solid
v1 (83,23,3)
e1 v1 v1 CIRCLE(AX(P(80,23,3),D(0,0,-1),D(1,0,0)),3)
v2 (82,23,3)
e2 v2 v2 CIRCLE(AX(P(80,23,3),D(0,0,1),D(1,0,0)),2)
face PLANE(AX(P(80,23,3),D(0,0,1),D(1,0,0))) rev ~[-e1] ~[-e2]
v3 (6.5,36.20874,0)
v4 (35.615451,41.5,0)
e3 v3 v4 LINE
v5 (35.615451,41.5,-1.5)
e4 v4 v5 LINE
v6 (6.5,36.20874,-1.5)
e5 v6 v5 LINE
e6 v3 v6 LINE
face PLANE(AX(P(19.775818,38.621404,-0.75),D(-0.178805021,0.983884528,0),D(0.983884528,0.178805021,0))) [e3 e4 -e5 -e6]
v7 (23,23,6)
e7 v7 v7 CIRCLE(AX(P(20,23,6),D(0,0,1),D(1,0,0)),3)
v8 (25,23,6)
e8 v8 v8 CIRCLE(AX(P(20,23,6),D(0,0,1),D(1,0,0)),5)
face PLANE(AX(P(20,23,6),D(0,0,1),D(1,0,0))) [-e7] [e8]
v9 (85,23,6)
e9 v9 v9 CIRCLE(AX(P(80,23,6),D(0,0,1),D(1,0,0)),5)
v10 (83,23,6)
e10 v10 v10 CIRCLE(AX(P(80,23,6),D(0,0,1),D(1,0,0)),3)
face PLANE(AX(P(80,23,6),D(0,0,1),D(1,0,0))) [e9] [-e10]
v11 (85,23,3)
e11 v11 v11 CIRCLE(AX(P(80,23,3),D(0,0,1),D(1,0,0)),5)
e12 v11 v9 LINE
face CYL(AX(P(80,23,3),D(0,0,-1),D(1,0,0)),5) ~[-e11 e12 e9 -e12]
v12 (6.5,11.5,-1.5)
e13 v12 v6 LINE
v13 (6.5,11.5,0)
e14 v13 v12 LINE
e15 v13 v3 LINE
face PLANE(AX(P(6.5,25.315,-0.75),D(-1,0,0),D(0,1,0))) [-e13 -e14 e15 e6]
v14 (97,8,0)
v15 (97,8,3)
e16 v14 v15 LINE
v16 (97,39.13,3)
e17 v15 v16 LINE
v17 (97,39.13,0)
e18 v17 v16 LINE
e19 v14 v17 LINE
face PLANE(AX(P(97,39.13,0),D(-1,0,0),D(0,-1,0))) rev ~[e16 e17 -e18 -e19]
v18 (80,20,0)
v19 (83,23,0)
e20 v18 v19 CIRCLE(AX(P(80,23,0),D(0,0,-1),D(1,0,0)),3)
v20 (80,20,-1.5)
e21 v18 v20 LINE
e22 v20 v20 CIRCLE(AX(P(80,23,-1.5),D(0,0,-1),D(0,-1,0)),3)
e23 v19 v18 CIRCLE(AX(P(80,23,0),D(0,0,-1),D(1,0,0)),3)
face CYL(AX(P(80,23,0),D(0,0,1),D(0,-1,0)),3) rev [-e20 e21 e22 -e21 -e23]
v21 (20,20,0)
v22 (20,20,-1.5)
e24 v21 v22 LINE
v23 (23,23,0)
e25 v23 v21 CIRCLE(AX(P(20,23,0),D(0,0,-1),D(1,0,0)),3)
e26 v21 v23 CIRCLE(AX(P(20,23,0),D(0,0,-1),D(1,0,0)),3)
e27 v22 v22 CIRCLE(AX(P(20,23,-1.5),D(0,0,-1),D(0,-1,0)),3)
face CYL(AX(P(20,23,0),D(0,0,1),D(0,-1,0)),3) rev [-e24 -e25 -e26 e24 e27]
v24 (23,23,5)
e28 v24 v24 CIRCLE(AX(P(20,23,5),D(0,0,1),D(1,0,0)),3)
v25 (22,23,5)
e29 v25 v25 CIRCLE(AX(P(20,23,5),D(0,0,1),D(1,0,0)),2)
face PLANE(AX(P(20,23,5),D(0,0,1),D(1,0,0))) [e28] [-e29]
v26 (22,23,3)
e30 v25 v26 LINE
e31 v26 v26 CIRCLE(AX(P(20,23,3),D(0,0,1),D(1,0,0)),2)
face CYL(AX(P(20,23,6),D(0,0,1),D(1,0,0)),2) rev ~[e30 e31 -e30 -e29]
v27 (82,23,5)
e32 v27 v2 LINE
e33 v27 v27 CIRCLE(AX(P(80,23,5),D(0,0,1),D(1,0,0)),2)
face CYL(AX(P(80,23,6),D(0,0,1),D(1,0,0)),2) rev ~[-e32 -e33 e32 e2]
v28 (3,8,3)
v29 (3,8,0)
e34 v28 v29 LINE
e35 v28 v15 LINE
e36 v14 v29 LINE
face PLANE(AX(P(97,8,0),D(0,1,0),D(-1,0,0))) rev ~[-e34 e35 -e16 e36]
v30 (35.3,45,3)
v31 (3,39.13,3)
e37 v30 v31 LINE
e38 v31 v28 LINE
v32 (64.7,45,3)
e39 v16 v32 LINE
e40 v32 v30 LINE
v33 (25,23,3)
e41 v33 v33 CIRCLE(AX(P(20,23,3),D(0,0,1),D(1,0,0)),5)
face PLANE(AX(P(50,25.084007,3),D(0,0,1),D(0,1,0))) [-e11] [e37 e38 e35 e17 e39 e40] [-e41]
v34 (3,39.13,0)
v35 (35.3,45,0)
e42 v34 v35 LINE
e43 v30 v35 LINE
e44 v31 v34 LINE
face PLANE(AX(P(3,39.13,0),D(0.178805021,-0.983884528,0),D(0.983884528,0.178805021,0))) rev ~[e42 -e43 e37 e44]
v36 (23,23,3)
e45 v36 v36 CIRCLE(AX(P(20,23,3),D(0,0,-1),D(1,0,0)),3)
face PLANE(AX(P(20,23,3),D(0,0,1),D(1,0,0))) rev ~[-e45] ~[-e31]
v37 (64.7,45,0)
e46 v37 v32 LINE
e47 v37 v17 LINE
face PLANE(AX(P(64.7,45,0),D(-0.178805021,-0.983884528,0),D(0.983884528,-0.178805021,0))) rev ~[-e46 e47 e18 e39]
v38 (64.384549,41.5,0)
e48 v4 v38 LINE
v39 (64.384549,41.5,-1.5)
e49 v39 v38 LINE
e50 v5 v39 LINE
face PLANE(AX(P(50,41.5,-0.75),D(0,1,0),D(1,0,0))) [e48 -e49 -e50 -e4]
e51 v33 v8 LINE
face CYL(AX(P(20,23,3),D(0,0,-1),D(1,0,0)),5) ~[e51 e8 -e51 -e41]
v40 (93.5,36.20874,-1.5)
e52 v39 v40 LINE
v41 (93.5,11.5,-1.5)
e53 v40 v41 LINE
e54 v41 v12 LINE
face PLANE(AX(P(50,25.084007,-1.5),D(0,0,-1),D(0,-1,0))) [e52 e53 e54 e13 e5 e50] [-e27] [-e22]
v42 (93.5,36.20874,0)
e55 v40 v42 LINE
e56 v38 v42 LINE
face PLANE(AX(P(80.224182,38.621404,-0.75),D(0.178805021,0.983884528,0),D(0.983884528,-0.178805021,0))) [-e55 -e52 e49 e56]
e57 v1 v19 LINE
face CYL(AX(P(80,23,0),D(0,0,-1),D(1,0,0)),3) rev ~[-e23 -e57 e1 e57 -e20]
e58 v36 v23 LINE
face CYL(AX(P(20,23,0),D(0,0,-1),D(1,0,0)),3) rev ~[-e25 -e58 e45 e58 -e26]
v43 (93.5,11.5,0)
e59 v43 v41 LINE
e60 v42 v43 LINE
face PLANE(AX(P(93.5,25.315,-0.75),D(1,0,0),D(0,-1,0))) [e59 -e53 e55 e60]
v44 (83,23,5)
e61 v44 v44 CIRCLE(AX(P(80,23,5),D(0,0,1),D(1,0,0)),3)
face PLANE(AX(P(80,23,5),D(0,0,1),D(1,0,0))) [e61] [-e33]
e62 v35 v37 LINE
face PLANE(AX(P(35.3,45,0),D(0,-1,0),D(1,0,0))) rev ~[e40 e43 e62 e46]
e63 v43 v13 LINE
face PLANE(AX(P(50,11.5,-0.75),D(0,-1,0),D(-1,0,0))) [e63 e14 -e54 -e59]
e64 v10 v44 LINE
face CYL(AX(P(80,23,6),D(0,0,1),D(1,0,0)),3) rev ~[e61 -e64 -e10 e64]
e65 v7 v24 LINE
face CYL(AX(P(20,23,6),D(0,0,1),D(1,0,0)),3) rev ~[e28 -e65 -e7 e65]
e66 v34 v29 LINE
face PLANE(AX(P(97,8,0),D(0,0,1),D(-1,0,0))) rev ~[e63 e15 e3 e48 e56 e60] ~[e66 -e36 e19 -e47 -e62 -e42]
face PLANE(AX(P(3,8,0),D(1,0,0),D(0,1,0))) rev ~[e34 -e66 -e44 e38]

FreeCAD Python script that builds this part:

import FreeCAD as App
import Part
import Sketcher
from FreeCAD import Vector
Q = App.Units.Quantity

doc = App.newDocument("Part")
body = doc.addObject("PartDesign::Body", "Body")

# Sketch on XY plane
sketch1 = body.newObject("Sketcher::SketchObject", "Sketch")
sketch1.AttachmentSupport = (doc.getObject("XY_Plane"), [""])
sketch1.MapMode = "FlatFace"
sketch1.addGeometry([
    Part.LineSegment(Vector(0, 45, 0), Vector(0, 0, 0)),
    Part.LineSegment(Vector(0, 0, 0), Vector(100, 0, 0)),
    Part.LineSegment(Vector(100, 0, 0), Vector(100, 45, 0)),
    Part.LineSegment(Vector(100, 45, 0), Vector(0, 45, 0)),
], False)
sketch1.addConstraint([
    Sketcher.Constraint("Coincident", 0, 2, 1, 1),
    Sketcher.Constraint("Coincident", 1, 2, 2, 1),
    Sketcher.Constraint("Coincident", 2, 2, 3, 1),
    Sketcher.Constraint("Coincident", 3, 2, 0, 1),
    Sketcher.Constraint("Vertical", 0),
    Sketcher.Constraint("Horizontal", 1),
    Sketcher.Constraint("Vertical", 2),
    Sketcher.Constraint("Horizontal", 3),
    Sketcher.Constraint("Coincident", 0, 2, -1, 1),
    Sketcher.Constraint("DistanceX", 1, 1, 1, 2, Q("100 mm")),
    Sketcher.Constraint("DistanceY", 0, 2, 0, 1, Q("45 mm")),
])
pad1 = body.newObject("PartDesign::Pad", "Pad")
pad1.Profile = sketch1
pad1.Length = 20

# Sketch on YZ plane
sketch2 = body.newObject("Sketcher::SketchObject", "Sketch001")
sketch2.AttachmentSupport = (doc.getObject("YZ_Plane"), [""])
sketch2.MapMode = "FlatFace"
sketch2.AttachmentOffset = App.Placement(Vector(0, 0, 100), App.Rotation())
sketch2.addGeometry([
    Part.LineSegment(Vector(45, 0, 0), Vector(45, 20, 0)),
    Part.LineSegment(Vector(45, 20, 0), Vector(0, 20, 0)),
    Part.LineSegment(Vector(0, 20, 0), Vector(0, 0, 0)),
    Part.LineSegment(Vector(0, 0, 0), Vector(45, 0, 0)),
], False)
sketch2.addConstraint([
    Sketcher.Constraint("Coincident", 0, 2, 1, 1),
    Sketcher.Constraint("Coincident", 1, 2, 2, 1),
    Sketcher.Constraint("Coincident", 2, 2, 3, 1),
    Sketcher.Constraint("Coincident", 3, 2, 0, 1),
    Sketcher.Constraint("Vertical", 0),
    Sketcher.Constraint("Horizontal", 1),
    Sketcher.Constraint("Vertical", 2),
    Sketcher.Constraint("Horizontal", 3),
    Sketcher.Constraint("Coincident", 2, 2, -1, 1),
    Sketcher.Constraint("DistanceX", 1, 2, 1, 1, Q("45 mm")),
    Sketcher.Constraint("DistanceY", 0, 1, 0, 2, Q("20 mm")),
])
pocket1 = body.newObject("PartDesign::Pocket", "Pocket")
pocket1.Profile = sketch2
pocket1.Length = 3

# Sketch on YZ plane
sketch3 = body.newObject("Sketcher::SketchObject", "Sketch002")
sketch3.AttachmentSupport = (doc.getObject("YZ_Plane"), [""])
sketch3.MapMode = "FlatFace"
sketch3.addGeometry([
    Part.LineSegment(Vector(0, 0, 0), Vector(0, 20, 0)),
    Part.LineSegment(Vector(0, 20, 0), Vector(45, 20, 0)),
    Part.LineSegment(Vector(45, 20, 0), Vector(45, 0, 0)),
    Part.LineSegment(Vector(45, 0, 0), Vector(0, 0, 0)),
], False)
sketch3.addConstraint([
    Sketcher.Constraint("Coincident", 0, 2, 1, 1),
    Sketcher.Constraint("Coincident", 1, 2, 2, 1),
    Sketcher.Constraint("Coincident", 2, 2, 3, 1),
    Sketcher.Constraint("Coincident", 3, 2, 0, 1),
    Sketcher.Constraint("Vertical", 0),
    Sketcher.Constraint("Horizontal", 1),
    Sketcher.Constraint("Vertical", 2),
    Sketcher.Constraint("Horizontal", 3),
    Sketcher.Constraint("Coincident", 3, 2, -1, 1),
    Sketcher.Constraint("DistanceX", 1, 1, 1, 2, Q("45 mm")),
    Sketcher.Constraint("DistanceY", 0, 1, 0, 2, Q("20 mm")),
])
pocket2 = body.newObject("PartDesign::Pocket", "Pocket001")
pocket2.Profile = sketch3
pocket2.Length = 3
pocket2.Reversed = True

# Sketch on XZ plane
sketch4 = body.newObject("Sketcher::SketchObject", "Sketch003")
sketch4.AttachmentSupport = (doc.getObject("XZ_Plane"), [""])
sketch4.MapMode = "FlatFace"
sketch4.addGeometry([
    Part.LineSegment(Vector(97, 0, 0), Vector(97, 20, 0)),
    Part.LineSegment(Vector(97, 20, 0), Vector(3, 20, 0)),
    Part.LineSegment(Vector(3, 20, 0), Vector(3, 0, 0)),
    Part.LineSegment(Vector(3, 0, 0), Vector(97, 0, 0)),
], False)
sketch4.addConstraint([
    Sketcher.Constraint("Coincident", 0, 2, 1, 1),
    Sketcher.Constraint("Coincident", 1, 2, 2, 1),
    Sketcher.Constraint("Coincident", 2, 2, 3, 1),
    Sketcher.Constraint("Coincident", 3, 2, 0, 1),
    Sketcher.Constraint("Vertical", 0),
    Sketcher.Constraint("Horizontal", 1),
    Sketcher.Constraint("Vertical", 2),
    Sketcher.Constraint("Horizontal", 3),
    Sketcher.Constraint("PointOnObject", 2, 2, -1),
    Sketcher.Constraint("DistanceX", 1, 2, 1, 1, Q("94 mm")),
    Sketcher.Constraint("DistanceY", 0, 1, 0, 2, Q("20 mm")),
    Sketcher.Constraint("DistanceX", -1, 1, 0, 2, Q("97 mm")),
])
pocket3 = body.newObject("PartDesign::Pocket", "Pocket002")
pocket3.Profile = sketch4
pocket3.Length = 8

# Sketch on XY plane
sketch5 = body.newObject("Sketcher::SketchObject", "Sketch004")
sketch5.AttachmentSupport = (doc.getObject("XY_Plane"), [""])
sketch5.MapMode = "FlatFace"
sketch5.AttachmentOffset = App.Placement(Vector(0, 0, 20), App.Rotation())
sketch5.addGeometry([
    Part.LineSegment(Vector(3, 45, 0), Vector(3, 39, 0)),  # 0
    Part.LineSegment(Vector(3, 39, 0), Vector(35, 45, 0)),  # 1
    Part.LineSegment(Vector(35, 45, 0), Vector(3, 45, 0)),  # 2
    Part.LineSegment(Vector(97, 45, 0), Vector(65, 45, 0)),  # 3
    Part.LineSegment(Vector(65, 45, 0), Vector(97, 39, 0)),  # 4
    Part.LineSegment(Vector(97, 39, 0), Vector(97, 45, 0)),  # 5
], False)
sketch5.addConstraint([
    Sketcher.Constraint("Coincident", 0, 2, 1, 1),
    Sketcher.Constraint("Coincident", 1, 2, 2, 1),
    Sketcher.Constraint("Coincident", 2, 2, 0, 1),
    Sketcher.Constraint("Coincident", 3, 2, 4, 1),
    Sketcher.Constraint("Coincident", 4, 2, 5, 1),
    Sketcher.Constraint("Coincident", 5, 2, 3, 1),
    Sketcher.Constraint("Vertical", 0),
    Sketcher.Constraint("Horizontal", 2),
    Sketcher.Constraint("Horizontal", 3),
    Sketcher.Constraint("Vertical", 5),
    Sketcher.Constraint("Horizontal", 2, 2, 3, 2),
    Sketcher.Constraint("Horizontal", 0, 2, 4, 2),
    Sketcher.Constraint("Equal", 2, 3),
    Sketcher.Constraint("DistanceX", 2, 2, 2, 1, Q("32.3 mm")),
    Sketcher.Constraint("DistanceX", -1, 1, 0, 2, Q("3 mm")),
    Sketcher.Constraint("DistanceY", -1, 1, 1, 2, Q("45 mm")),
    Sketcher.Constraint("DistanceX", -1, 1, 4, 2, Q("97 mm")),
    Sketcher.Constraint("DistanceY", 0, 2, 0, 1, Q("5.87 mm")),
])
pocket4 = body.newObject("PartDesign::Pocket", "Pocket003")
pocket4.Profile = sketch5
pocket4.Length = 20

# Sketch on XY plane
sketch6 = body.newObject("Sketcher::SketchObject", "Sketch005")
sketch6.AttachmentSupport = (doc.getObject("XY_Plane"), [""])
sketch6.MapMode = "FlatFace"
sketch6.AttachmentOffset = App.Placement(Vector(0, 0, 20), App.Rotation())
sketch6.addGeometry([
    Part.LineSegment(Vector(6, 37, 0), Vector(6, 11, 0)),  # 0
    Part.LineSegment(Vector(6, 11, 0), Vector(94, 11, 0)),  # 1
    Part.LineSegment(Vector(94, 11, 0), Vector(94, 37, 0)),  # 2
    Part.LineSegment(Vector(94, 37, 0), Vector(65, 42, 0)),  # 3
    Part.LineSegment(Vector(65, 42, 0), Vector(35, 42, 0)),  # 4
    Part.LineSegment(Vector(35, 42, 0), Vector(6, 37, 0)),  # 5
], False)
sketch6.addConstraint([
    Sketcher.Constraint("Coincident", 0, 2, 1, 1),
    Sketcher.Constraint("Coincident", 1, 2, 2, 1),
    Sketcher.Constraint("Coincident", 2, 2, 3, 1),
    Sketcher.Constraint("Coincident", 3, 2, 4, 1),
    Sketcher.Constraint("Coincident", 4, 2, 5, 1),
    Sketcher.Constraint("Coincident", 5, 2, 0, 1),
    Sketcher.Constraint("Vertical", 0),
    Sketcher.Constraint("Horizontal", 1),
    Sketcher.Constraint("Vertical", 2),
    Sketcher.Constraint("Horizontal", 4),
    Sketcher.Constraint("Horizontal", 2, 2, 5, 2),
    Sketcher.Constraint("Equal", 3, 5),
    Sketcher.Constraint("DistanceX", 1, 1, 1, 2, Q("88 mm")),
    Sketcher.Constraint("DistanceX", -1, 1, 0, 2, Q("6 mm")),
    Sketcher.Constraint("DistanceY", -1, 1, 0, 2, Q("11 mm")),
    Sketcher.Constraint("DistanceY", -1, 1, 3, 2, Q("42 mm")),
    Sketcher.Constraint("Distance", 3, Q("29.83 mm")),
    Sketcher.Constraint("DistanceX", 4, 2, 4, 1, Q("29.316111 mm")),
])
pocket5 = body.newObject("PartDesign::Pocket", "Pocket004")
pocket5.Profile = sketch6
pocket5.Length = 17

# Sketch on XY plane
sketch7 = body.newObject("Sketcher::SketchObject", "Sketch006")
sketch7.AttachmentSupport = (doc.getObject("XY_Plane"), [""])
sketch7.MapMode = "FlatFace"
sketch7.AttachmentOffset = App.Placement(Vector(0, 0, 20), App.Rotation())
sketch7.addGeometry([
    Part.LineSegment(Vector(3, 8, 0), Vector(97, 8, 0)),  # 0
    Part.LineSegment(Vector(97, 8, 0), Vector(97, 39, 0)),  # 1
    Part.LineSegment(Vector(97, 39, 0), Vector(65, 45, 0)),  # 2
    Part.LineSegment(Vector(65, 45, 0), Vector(35, 45, 0)),  # 3
    Part.LineSegment(Vector(35, 45, 0), Vector(3, 39, 0)),  # 4
    Part.LineSegment(Vector(3, 39, 0), Vector(3, 8, 0)),  # 5
    Part.LineSegment(Vector(94, 11, 0), Vector(6, 11, 0)),  # 6
    Part.LineSegment(Vector(6, 11, 0), Vector(6, 37, 0)),  # 7
    Part.LineSegment(Vector(6, 37, 0), Vector(35, 42, 0)),  # 8
    Part.LineSegment(Vector(35, 42, 0), Vector(65, 42, 0)),  # 9
    Part.LineSegment(Vector(65, 42, 0), Vector(94, 37, 0)),  # 10
    Part.LineSegment(Vector(94, 37, 0), Vector(94, 11, 0)),  # 11
], False)
sketch7.addConstraint([
    Sketcher.Constraint("Coincident", 0, 2, 1, 1),
    Sketcher.Constraint("Coincident", 1, 2, 2, 1),
    Sketcher.Constraint("Coincident", 2, 2, 3, 1),
    Sketcher.Constraint("Coincident", 3, 2, 4, 1),
    Sketcher.Constraint("Coincident", 4, 2, 5, 1),
    Sketcher.Constraint("Coincident", 5, 2, 0, 1),
    Sketcher.Constraint("Coincident", 6, 2, 7, 1),
    Sketcher.Constraint("Coincident", 7, 2, 8, 1),
    Sketcher.Constraint("Coincident", 8, 2, 9, 1),
    Sketcher.Constraint("Coincident", 9, 2, 10, 1),
    Sketcher.Constraint("Coincident", 10, 2, 11, 1),
    Sketcher.Constraint("Coincident", 11, 2, 6, 1),
    Sketcher.Constraint("Horizontal", 0),
    Sketcher.Constraint("Vertical", 1),
    Sketcher.Constraint("Horizontal", 3),
    Sketcher.Constraint("Vertical", 5),
    Sketcher.Constraint("Horizontal", 6),
    Sketcher.Constraint("Vertical", 7),
    Sketcher.Constraint("Horizontal", 9),
    Sketcher.Constraint("Vertical", 11),
    Sketcher.Constraint("Horizontal", 1, 2, 4, 2),
    Sketcher.Constraint("Horizontal", 7, 2, 10, 2),
    Sketcher.Constraint("Equal", 2, 4),
    Sketcher.Constraint("Equal", 8, 10),
    Sketcher.Constraint("DistanceX", 0, 1, 0, 2, Q("94 mm")),
    Sketcher.Constraint("DistanceX", 6, 2, 6, 1, Q("88 mm")),
    Sketcher.Constraint("DistanceX", 3, 2, 3, 1, Q("29.4 mm")),
    Sketcher.Constraint("DistanceX", -1, 1, 0, 2, Q("97 mm")),
    Sketcher.Constraint("DistanceY", -1, 1, 0, 2, Q("8 mm")),
    Sketcher.Constraint("DistanceY", -1, 1, 2, 2, Q("45 mm")),
    Sketcher.Constraint("DistanceX", -1, 1, 6, 2, Q("6 mm")),
    Sketcher.Constraint("DistanceY", -1, 1, 6, 2, Q("11 mm")),
    Sketcher.Constraint("DistanceY", -1, 1, 8, 2, Q("42 mm")),
    Sketcher.Constraint("DistanceY", 1, 1, 1, 2, Q("31.13 mm")),
    Sketcher.Constraint("Distance", 8, Q("29.83 mm")),
    Sketcher.Constraint("DistanceX", 9, 1, 9, 2, Q("29.316111 mm")),
])
pad2 = body.newObject("PartDesign::Pad", "Pad001")
pad2.Profile = sketch7
pad2.Length = 2

# Sketch on XZ plane
sketch8 = body.newObject("Sketcher::SketchObject", "Sketch007")
sketch8.AttachmentSupport = (doc.getObject("XZ_Plane"), [""])
sketch8.MapMode = "FlatFace"
sketch8.AttachmentOffset = App.Placement(Vector(0, 0, -45), App.Rotation())
sketch8.addGeometry([
    Part.Circle(Vector(59.4, 17, 0), Vector(0, 0, 1), 4),  # 0
    Part.Circle(Vector(50, 17, 0), Vector(0, 0, 1), 4),  # 1
    Part.Circle(Vector(40.6, 17, 0), Vector(0, 0, 1), 4),  # 2
    Part.Circle(Vector(59.4, 7.5, 0), Vector(0, 0, 1), 4),  # 3
    Part.Circle(Vector(50, 7.5, 0), Vector(0, 0, 1), 4),  # 4
    Part.Circle(Vector(40.6, 7.5, 0), Vector(0, 0, 1), 4),  # 5
], False)
sketch8.addConstraint([
    Sketcher.Constraint("Equal", 0, 1),
    Sketcher.Constraint("Equal", 1, 2),
    Sketcher.Constraint("Equal", 2, 3),
    Sketcher.Constraint("Equal", 3, 4),
    Sketcher.Constraint("Equal", 4, 5),
    Sketcher.Constraint("Horizontal", 0, 3, 1, 3),
    Sketcher.Constraint("Horizontal", 1, 3, 2, 3),
    Sketcher.Constraint("Horizontal", 3, 3, 4, 3),
    Sketcher.Constraint("Horizontal", 4, 3, 5, 3),
    Sketcher.Constraint("Vertical", 0, 3, 3, 3),
    Sketcher.Constraint("Vertical", 1, 3, 4, 3),
    Sketcher.Constraint("Vertical", 2, 3, 5, 3),
    Sketcher.Constraint("Diameter", 0, Q("8.05 mm")),
    Sketcher.Constraint("DistanceX", -1, 1, 1, 3, Q("50 mm")),
    Sketcher.Constraint("DistanceY", 3, 3, 0, 3, Q("9.45 mm")),
    Sketcher.Constraint("DistanceY", -1, 1, 0, 3, Q("16.975 mm")),
    Sketcher.Constraint("DistanceX", 2, 3, 0, 3, Q("18.725 mm")),
    Sketcher.Constraint("DistanceX", -1, 1, 0, 3, Q("59.3625 mm")),
])
pocket6 = body.newObject("PartDesign::Pocket", "Pocket005")
pocket6.Profile = sketch8
pocket6.Length = 5
pocket6.Reversed = True

# Sketch on an angled plane
sketch9 = body.newObject("Sketcher::SketchObject", "Sketch008")
sketch9.Placement = App.Placement(Vector(9.985096, 54.943544, 0), App.Rotation(Vector(-0.983884528, 0.178805021, 0), Vector(0, 0, 1), Vector(0.178805021, 0.983884528, 0), "ZXY"))
sketch9.addGeometry([
    Part.Circle(Vector(-80, 17, 0), Vector(0, 0, 1), 4),  # 0
    Part.Circle(Vector(-71, 17, 0), Vector(0, 0, 1), 4),  # 1
    Part.Circle(Vector(-61.6, 17, 0), Vector(0, 0, 1), 4),  # 2
    Part.Circle(Vector(-80.3, 7.5, 0), Vector(0, 0, 1), 4),  # 3
    Part.Circle(Vector(-71, 7.5, 0), Vector(0, 0, 1), 4),  # 4
    Part.Circle(Vector(-61.6, 7.5, 0), Vector(0, 0, 1), 4),  # 5
], False)
sketch9.addConstraint([
    Sketcher.Constraint("Equal", 0, 1),
    Sketcher.Constraint("Equal", 1, 2),
    Sketcher.Constraint("Equal", 2, 3),
    Sketcher.Constraint("Equal", 3, 4),
    Sketcher.Constraint("Equal", 4, 5),
    Sketcher.Constraint("Horizontal", 0, 3, 1, 3),
    Sketcher.Constraint("Horizontal", 1, 3, 2, 3),
    Sketcher.Constraint("Horizontal", 3, 3, 4, 3),
    Sketcher.Constraint("Horizontal", 4, 3, 5, 3),
    Sketcher.Constraint("Vertical", 1, 3, 4, 3),
    Sketcher.Constraint("Vertical", 2, 3, 5, 3),
    Sketcher.Constraint("Diameter", 0, Q("8.05 mm")),
    Sketcher.Constraint("DistanceY", 3, 3, 0, 3, Q("9.45 mm")),
    Sketcher.Constraint("DistanceY", -1, 1, 0, 3, Q("16.975 mm")),
    Sketcher.Constraint("DistanceX", 3, 3, 2, 3, Q("18.725 mm")),
    Sketcher.Constraint("DistanceX", 1, 3, 2, 3, Q("9.3625 mm")),
    Sketcher.Constraint("DistanceX", 0, 3, 1, 3, Q("9.03625 mm")),
    Sketcher.Constraint("DistanceX", 0, 3, -1, 1, Q("80.009853 mm")),
])
pocket7 = body.newObject("PartDesign::Pocket", "Pocket006")
pocket7.Profile = sketch9
pocket7.Length = 5

# Sketch on an angled plane
sketch10 = body.newObject("Sketcher::SketchObject", "Sketch009")
sketch10.Placement = App.Placement(Vector(-6.787973, 37.351195, 0), App.Rotation(Vector(-0.983884528, -0.178805021, 0), Vector(0, 0, 1), Vector(-0.178805021, 0.983884528, 0), "ZXY"))
sketch10.addGeometry([
    Part.Circle(Vector(-36.8, 17, 0), Vector(0, 0, 1), 4),  # 0
    Part.Circle(Vector(-27.4, 17, 0), Vector(0, 0, 1), 4),  # 1
    Part.Circle(Vector(-18.1, 17, 0), Vector(0, 0, 1), 4),  # 2
    Part.Circle(Vector(-36.8, 7.5, 0), Vector(0, 0, 1), 4),  # 3
    Part.Circle(Vector(-27.4, 7.5, 0), Vector(0, 0, 1), 4),  # 4
    Part.Circle(Vector(-18.1, 7.5, 0), Vector(0, 0, 1), 4),  # 5
], False)
sketch10.addConstraint([
    Sketcher.Constraint("Equal", 0, 1),
    Sketcher.Constraint("Equal", 1, 2),
    Sketcher.Constraint("Equal", 2, 3),
    Sketcher.Constraint("Equal", 3, 4),
    Sketcher.Constraint("Equal", 4, 5),
    Sketcher.Constraint("Horizontal", 0, 3, 1, 3),
    Sketcher.Constraint("Horizontal", 1, 3, 2, 3),
    Sketcher.Constraint("Horizontal", 3, 3, 4, 3),
    Sketcher.Constraint("Horizontal", 4, 3, 5, 3),
    Sketcher.Constraint("Vertical", 0, 3, 3, 3),
    Sketcher.Constraint("Vertical", 1, 3, 4, 3),
    Sketcher.Constraint("Vertical", 2, 3, 5, 3),
    Sketcher.Constraint("Diameter", 0, Q("8.05 mm")),
    Sketcher.Constraint("DistanceY", 3, 3, 0, 3, Q("9.45 mm")),
    Sketcher.Constraint("DistanceY", -1, 1, 0, 3, Q("16.975 mm")),
    Sketcher.Constraint("DistanceX", 0, 3, 2, 3, Q("18.725 mm")),
    Sketcher.Constraint("DistanceX", 0, 3, 1, 3, Q("9.3625 mm")),
    Sketcher.Constraint("DistanceX", 0, 3, -1, 1, Q("36.77735 mm")),
])
pocket8 = body.newObject("PartDesign::Pocket", "Pocket007")
pocket8.Profile = sketch10
pocket8.Length = 5

# Sketch on XY plane
sketch11 = body.newObject("Sketcher::SketchObject", "Sketch010")
sketch11.AttachmentSupport = (doc.getObject("XY_Plane"), [""])
sketch11.MapMode = "FlatFace"
sketch11.addGeometry([
    Part.Circle(Vector(50, 23, 0), Vector(0, 0, 1), 4),  # 0
    Part.Circle(Vector(65.7, 18, 0), Vector(0, 0, 1), 2),  # 1
    Part.Circle(Vector(34.3, 18, 0), Vector(0, 0, 1), 2),  # 2
    Part.Circle(Vector(20, 23, 0), Vector(0, 0, 1), 2),  # 3
    Part.Circle(Vector(80, 23, 0), Vector(0, 0, 1), 2),  # 4
], False)
sketch11.addConstraint([
    Sketcher.Constraint("Equal", 1, 2),
    Sketcher.Constraint("Equal", 2, 3),
    Sketcher.Constraint("Equal", 3, 4),
    Sketcher.Constraint("Horizontal", 1, 3, 2, 3),
    Sketcher.Constraint("Horizontal", 0, 3, 3, 3),
    Sketcher.Constraint("Horizontal", 3, 3, 4, 3),
    Sketcher.Constraint("Diameter", 0, Q("8 mm")),
    Sketcher.Constraint("Diameter", 1, Q("4 mm")),
    Sketcher.Constraint("DistanceX", -1, 1, 0, 3, Q("50 mm")),
    Sketcher.Constraint("DistanceY", -1, 1, 0, 3, Q("23 mm")),
    Sketcher.Constraint("DistanceY", -1, 1, 1, 3, Q("18 mm")),
    Sketcher.Constraint("DistanceX", -1, 1, 3, 3, Q("20 mm")),
    Sketcher.Constraint("DistanceX", -1, 1, 4, 3, Q("80 mm")),
    Sketcher.Constraint("DistanceX", -1, 1, 1, 3, Q("65.7 mm")),
    Sketcher.Constraint("DistanceX", -1, 1, 2, 3, Q("34.3 mm")),
])
pocket9 = body.newObject("PartDesign::Pocket", "Pocket008")
pocket9.Profile = sketch11
pocket9.Length = 5
pocket9.Reversed = True

# Sketch on XY plane
sketch12 = body.newObject("Sketcher::SketchObject", "Sketch011")
sketch12.AttachmentSupport = (doc.getObject("XY_Plane"), [""])
sketch12.MapMode = "FlatFace"
sketch12.addGeometry([
    Part.Circle(Vector(20, 23, 0), Vector(0, 0, 1), 3),
    Part.Circle(Vector(80, 23, 0), Vector(0, 0, 1), 3),
], False)
sketch12.addConstraint([
    Sketcher.Constraint("Equal", 0, 1),
    Sketcher.Constraint("Horizontal", 0, 3, 1, 3),
    Sketcher.Constraint("Diameter", 0, Q("6 mm")),
    Sketcher.Constraint("DistanceX", -1, 1, 0, 3, Q("20 mm")),
    Sketcher.Constraint("DistanceY", -1, 1, 0, 3, Q("23 mm")),
    Sketcher.Constraint("DistanceX", -1, 1, 1, 3, Q("80 mm")),
])
pocket10 = body.newObject("PartDesign::Pocket", "Pocket009")
pocket10.Profile = sketch12
pocket10.Length = 1
pocket10.Reversed = True

# Sketch on XY plane
sketch13 = body.newObject("Sketcher::SketchObject", "Sketch012")
sketch13.AttachmentSupport = (doc.getObject("XY_Plane"), [""])
sketch13.MapMode = "FlatFace"
sketch13.AttachmentOffset = App.Placement(Vector(0, 0, 22), App.Rotation())
sketch13.addGeometry([
    Part.LineSegment(Vector(3, 8, 0), Vector(97, 8, 0)),  # 0
    Part.LineSegment(Vector(97, 8, 0), Vector(97, 39, 0)),  # 1
    Part.LineSegment(Vector(97, 39, 0), Vector(65, 45, 0)),  # 2
    Part.LineSegment(Vector(65, 45, 0), Vector(35, 45, 0)),  # 3
    Part.LineSegment(Vector(35, 45, 0), Vector(3, 39, 0)),  # 4
    Part.LineSegment(Vector(3, 39, 0), Vector(3, 8, 0)),  # 5
    Part.LineSegment(Vector(94, 11, 0), Vector(6, 11, 0)),  # 6
    Part.LineSegment(Vector(6, 11, 0), Vector(6, 37, 0)),  # 7
    Part.LineSegment(Vector(6, 37, 0), Vector(35, 42, 0)),  # 8
    Part.LineSegment(Vector(35, 42, 0), Vector(65, 42, 0)),  # 9
    Part.LineSegment(Vector(65, 42, 0), Vector(94, 37, 0)),  # 10
    Part.LineSegment(Vector(94, 37, 0), Vector(94, 11, 0)),  # 11
], False)
sketch13.addConstraint([
    Sketcher.Constraint("Coincident", 0, 2, 1, 1),
    Sketcher.Constraint("Coincident", 1, 2, 2, 1),
    Sketcher.Constraint("Coincident", 2, 2, 3, 1),
    Sketcher.Constraint("Coincident", 3, 2, 4, 1),
    Sketcher.Constraint("Coincident", 4, 2, 5, 1),
    Sketcher.Constraint("Coincident", 5, 2, 0, 1),
    Sketcher.Constraint("Coincident", 6, 2, 7, 1),
    Sketcher.Constraint("Coincident", 7, 2, 8, 1),
    Sketcher.Constraint("Coincident", 8, 2, 9, 1),
    Sketcher.Constraint("Coincident", 9, 2, 10, 1),
    Sketcher.Constraint("Coincident", 10, 2, 11, 1),
    Sketcher.Constraint("Coincident", 11, 2, 6, 1),
    Sketcher.Constraint("Horizontal", 0),
    Sketcher.Constraint("Vertical", 1),
    Sketcher.Constraint("Horizontal", 3),
    Sketcher.Constraint("Vertical", 5),
    Sketcher.Constraint("Horizontal", 6),
    Sketcher.Constraint("Vertical", 7),
    Sketcher.Constraint("Horizontal", 9),
    Sketcher.Constraint("Vertical", 11),
    Sketcher.Constraint("Horizontal", 1, 2, 4, 2),
    Sketcher.Constraint("Horizontal", 7, 2, 10, 2),
    Sketcher.Constraint("Equal", 2, 4),
    Sketcher.Constraint("Equal", 8, 10),
    Sketcher.Constraint("DistanceX", 0, 1, 0, 2, Q("94 mm")),
    Sketcher.Constraint("DistanceX", 6, 2, 6, 1, Q("88 mm")),
    Sketcher.Constraint("DistanceX", 3, 2, 3, 1, Q("29.4 mm")),
    Sketcher.Constraint("DistanceX", -1, 1, 0, 2, Q("97 mm")),
    Sketcher.Constraint("DistanceY", -1, 1, 0, 2, Q("8 mm")),
    Sketcher.Constraint("DistanceY", -1, 1, 2, 2, Q("45 mm")),
    Sketcher.Constraint("DistanceX", -1, 1, 6, 2, Q("6 mm")),
    Sketcher.Constraint("DistanceY", -1, 1, 6, 2, Q("11 mm")),
    Sketcher.Constraint("DistanceY", -1, 1, 8, 2, Q("42 mm")),
    Sketcher.Constraint("DistanceY", 1, 1, 1, 2, Q("31.13 mm")),
    Sketcher.Constraint("Distance", 8, Q("29.83 mm")),
    Sketcher.Constraint("DistanceX", 9, 1, 9, 2, Q("29.316111 mm")),
])
pad3 = body.newObject("PartDesign::Pad", "Pad002")
pad3.Profile = sketch13
pad3.Length = 1

# Sketch on XZ plane
sketch14 = body.newObject("Sketcher::SketchObject", "Sketch013")
sketch14.AttachmentSupport = (doc.getObject("XZ_Plane"), [""])
sketch14.MapMode = "FlatFace"
sketch14.AttachmentOffset = App.Placement(Vector(0, 0, -45), App.Rotation())
sketch14.addGeometry([
    Part.Circle(Vector(59.4, 17, 0), Vector(0, 0, 1), 4),  # 0
    Part.Circle(Vector(50, 17, 0), Vector(0, 0, 1), 4),  # 1
    Part.Circle(Vector(40.6, 17, 0), Vector(0, 0, 1), 4),  # 2
    Part.Circle(Vector(40.6, 7.5, 0), Vector(0, 0, 1), 4),  # 3
    Part.Circle(Vector(50, 7.5, 0), Vector(0, 0, 1), 4),  # 4
    Part.Circle(Vector(59.4, 7.5, 0), Vector(0, 0, 1), 4),  # 5
], False)
sketch14.addConstraint([
    Sketcher.Constraint("Equal", 0, 1),
    Sketcher.Constraint("Equal", 1, 2),
    Sketcher.Constraint("Equal", 2, 3),
    Sketcher.Constraint("Equal", 3, 4),
    Sketcher.Constraint("Equal", 4, 5),
    Sketcher.Constraint("Horizontal", 0, 3, 1, 3),
    Sketcher.Constraint("Horizontal", 1, 3, 2, 3),
    Sketcher.Constraint("Horizontal", 3, 3, 4, 3),
    Sketcher.Constraint("Horizontal", 4, 3, 5, 3),
    Sketcher.Constraint("Vertical", 2, 3, 3, 3),
    Sketcher.Constraint("Vertical", 0, 3, 5, 3),
    Sketcher.Constraint("Diameter", 0, Q("8.1 mm")),
    Sketcher.Constraint("DistanceX", -1, 1, 4, 3, Q("50 mm")),
    Sketcher.Constraint("DistanceY", 3, 3, 2, 3, Q("9.45 mm")),
    Sketcher.Constraint("DistanceY", -1, 1, 0, 3, Q("16.975 mm")),
    Sketcher.Constraint("DistanceX", 2, 3, 0, 3, Q("18.725 mm")),
    Sketcher.Constraint("DistanceX", -1, 1, 0, 3, Q("59.3625 mm")),
    Sketcher.Constraint("DistanceX", -1, 1, 1, 3, Q("50.000011 mm")),
])
pocket11 = body.newObject("PartDesign::Pocket", "Pocket010")
pocket11.Profile = sketch14
pocket11.Length = 5
pocket11.Reversed = True

# Sketch on an angled plane
sketch15 = body.newObject("Sketcher::SketchObject", "Sketch014")
sketch15.Placement = App.Placement(Vector(9.985096, 54.943544, 0), App.Rotation(Vector(-0.983884528, 0.178805021, 0), Vector(0, 0, 1), Vector(0.178805021, 0.983884528, 0), "ZXY"))
sketch15.addGeometry([
    Part.Circle(Vector(-80, 17, 0), Vector(0, 0, 1), 4),  # 0
    Part.Circle(Vector(-71, 17, 0), Vector(0, 0, 1), 4),  # 1
    Part.Circle(Vector(-61.6, 17, 0), Vector(0, 0, 1), 4),  # 2
    Part.Circle(Vector(-61.6, 7.5, 0), Vector(0, 0, 1), 4),  # 3
    Part.Circle(Vector(-71, 7.5, 0), Vector(0, 0, 1), 4),  # 4
    Part.Circle(Vector(-80.3, 7.5, 0), Vector(0, 0, 1), 4),  # 5
], False)
sketch15.addConstraint([
    Sketcher.Constraint("Equal", 0, 1),
    Sketcher.Constraint("Equal", 1, 2),
    Sketcher.Constraint("Equal", 2, 3),
    Sketcher.Constraint("Equal", 3, 4),
    Sketcher.Constraint("Equal", 4, 5),
    Sketcher.Constraint("Horizontal", 0, 3, 1, 3),
    Sketcher.Constraint("Horizontal", 1, 3, 2, 3),
    Sketcher.Constraint("Horizontal", 3, 3, 4, 3),
    Sketcher.Constraint("Horizontal", 4, 3, 5, 3),
    Sketcher.Constraint("Vertical", 2, 3, 3, 3),
    Sketcher.Constraint("Vertical", 1, 3, 4, 3),
    Sketcher.Constraint("Diameter", 0, Q("8.1 mm")),
    Sketcher.Constraint("DistanceY", 3, 3, 2, 3, Q("9.45 mm")),
    Sketcher.Constraint("DistanceY", -1, 1, 0, 3, Q("16.975 mm")),
    Sketcher.Constraint("DistanceX", 5, 3, 3, 3, Q("18.725 mm")),
    Sketcher.Constraint("DistanceX", 1, 3, 2, 3, Q("9.3625 mm")),
    Sketcher.Constraint("DistanceX", 0, 3, 1, 3, Q("9.03625 mm")),
    Sketcher.Constraint("DistanceX", 0, 3, -1, 1, Q("80.009853 mm")),
])
pocket12 = body.newObject("PartDesign::Pocket", "Pocket011")
pocket12.Profile = sketch15
pocket12.Length = 5

# Sketch on an angled plane
sketch16 = body.newObject("Sketcher::SketchObject", "Sketch015")
sketch16.Placement = App.Placement(Vector(-6.787973, 37.351195, 0), App.Rotation(Vector(-0.983884528, -0.178805021, 0), Vector(0, 0, 1), Vector(-0.178805021, 0.983884528, 0), "ZXY"))
sketch16.addGeometry([
    Part.Circle(Vector(-36.8, 17, 0), Vector(0, 0, 1), 4),  # 0
    Part.Circle(Vector(-27.4, 17, 0), Vector(0, 0, 1), 4),  # 1
    Part.Circle(Vector(-18.1, 17, 0), Vector(0, 0, 1), 4),  # 2
    Part.Circle(Vector(-18.1, 7.5, 0), Vector(0, 0, 1), 4),  # 3
    Part.Circle(Vector(-27.4, 7.5, 0), Vector(0, 0, 1), 4),  # 4
    Part.Circle(Vector(-36.8, 7.5, 0), Vector(0, 0, 1), 4),  # 5
], False)
sketch16.addConstraint([
    Sketcher.Constraint("Equal", 0, 1),
    Sketcher.Constraint("Equal", 1, 2),
    Sketcher.Constraint("Equal", 2, 3),
    Sketcher.Constraint("Equal", 3, 4),
    Sketcher.Constraint("Equal", 4, 5),
    Sketcher.Constraint("Horizontal", 0, 3, 1, 3),
    Sketcher.Constraint("Horizontal", 1, 3, 2, 3),
    Sketcher.Constraint("Horizontal", 3, 3, 4, 3),
    Sketcher.Constraint("Horizontal", 4, 3, 5, 3),
    Sketcher.Constraint("Vertical", 2, 3, 3, 3),
    Sketcher.Constraint("Vertical", 1, 3, 4, 3),
    Sketcher.Constraint("Vertical", 0, 3, 5, 3),
    Sketcher.Constraint("Diameter", 0, Q("8.1 mm")),
    Sketcher.Constraint("DistanceY", 3, 3, 2, 3, Q("9.45 mm")),
    Sketcher.Constraint("DistanceY", -1, 1, 0, 3, Q("16.975 mm")),
    Sketcher.Constraint("DistanceX", 0, 3, 2, 3, Q("18.725 mm")),
    Sketcher.Constraint("DistanceX", 0, 3, 1, 3, Q("9.3625 mm")),
    Sketcher.Constraint("DistanceX", 0, 3, -1, 1, Q("36.77735 mm")),
])
pocket13 = body.newObject("PartDesign::Pocket", "Pocket012")
pocket13.Profile = sketch16
pocket13.Length = 5

# Sketch on YZ plane
sketch17 = body.newObject("Sketcher::SketchObject", "Sketch016")
sketch17.AttachmentSupport = (doc.getObject("YZ_Plane"), [""])
sketch17.MapMode = "FlatFace"
sketch17.AttachmentOffset = App.Placement(Vector(0, 0, 3), App.Rotation())
sketch17.addGeometry(Part.Circle(Vector(20, 15, 0), Vector(0, 0, 1), 4), False)
sketch17.addConstraint([
    Sketcher.Constraint("Diameter", 0, Q("8 mm")),
    Sketcher.Constraint("DistanceX", -1, 1, 0, 3, Q("20 mm")),
    Sketcher.Constraint("DistanceY", -1, 1, 0, 3, Q("15 mm")),
])
pocket14 = body.newObject("PartDesign::Pocket", "Pocket013")
pocket14.Profile = sketch17
pocket14.Length = 5
pocket14.Reversed = True

# Sketch on YZ plane
sketch18 = body.newObject("Sketcher::SketchObject", "Sketch017")
sketch18.AttachmentSupport = (doc.getObject("YZ_Plane"), [""])
sketch18.MapMode = "FlatFace"
sketch18.AttachmentOffset = App.Placement(Vector(0, 0, 3), App.Rotation())
sketch18.addGeometry([
    Part.LineSegment(Vector(28, 20, 0), Vector(28, 9, 0)),
    Part.LineSegment(Vector(28, 9, 0), Vector(12, 9, 0)),
    Part.LineSegment(Vector(12, 9, 0), Vector(12, 20, 0)),
    Part.LineSegment(Vector(12, 20, 0), Vector(28, 20, 0)),
], False)
sketch18.addConstraint([
    Sketcher.Constraint("Coincident", 0, 2, 1, 1),
    Sketcher.Constraint("Coincident", 1, 2, 2, 1),
    Sketcher.Constraint("Coincident", 2, 2, 3, 1),
    Sketcher.Constraint("Coincident", 3, 2, 0, 1),
    Sketcher.Constraint("Vertical", 0),
    Sketcher.Constraint("Horizontal", 1),
    Sketcher.Constraint("Vertical", 2),
    Sketcher.Constraint("Horizontal", 3),
    Sketcher.Constraint("DistanceX", 1, 2, 1, 1, Q("15.333549 mm")),
    Sketcher.Constraint("DistanceY", 0, 2, 0, 1, Q("10.93085 mm")),
    Sketcher.Constraint("DistanceX", -1, 1, 0, 2, Q("27.7057 mm")),
    Sketcher.Constraint("DistanceY", -1, 1, 0, 2, Q("8.925771 mm")),
])
pad4 = body.newObject("PartDesign::Pad", "Pad003")
pad4.Profile = sketch18
pad4.Length = 3

# Sketch on XY plane
sketch19 = body.newObject("Sketcher::SketchObject", "Sketch018")
sketch19.AttachmentSupport = (doc.getObject("XY_Plane"), [""])
sketch19.MapMode = "FlatFace"
sketch19.AttachmentOffset = App.Placement(Vector(0, 0, 23), App.Rotation())
sketch19.addGeometry([
    Part.LineSegment(Vector(3, 8, 0), Vector(97, 8, 0)),  # 0
    Part.LineSegment(Vector(97, 8, 0), Vector(97, 39, 0)),  # 1
    Part.LineSegment(Vector(97, 39, 0), Vector(65, 45, 0)),  # 2
    Part.LineSegment(Vector(65, 45, 0), Vector(35, 45, 0)),  # 3
    Part.LineSegment(Vector(35, 45, 0), Vector(3, 39, 0)),  # 4
    Part.LineSegment(Vector(3, 39, 0), Vector(3, 8, 0)),  # 5
    Part.LineSegment(Vector(94, 11, 0), Vector(6, 11, 0)),  # 6
    Part.LineSegment(Vector(6, 11, 0), Vector(6, 37, 0)),  # 7
    Part.LineSegment(Vector(6, 37, 0), Vector(35, 42, 0)),  # 8
    Part.LineSegment(Vector(35, 42, 0), Vector(65, 42, 0)),  # 9
    Part.LineSegment(Vector(65, 42, 0), Vector(94, 37, 0)),  # 10
    Part.LineSegment(Vector(94, 37, 0), Vector(94, 11, 0)),  # 11
], False)
sketch19.addConstraint([
    Sketcher.Constraint("Coincident", 0, 2, 1, 1),
    Sketcher.Constraint("Coincident", 1, 2, 2, 1),
    Sketcher.Constraint("Coincident", 2, 2, 3, 1),
    Sketcher.Constraint("Coincident", 3, 2, 4, 1),
    Sketcher.Constraint("Coincident", 4, 2, 5, 1),
    Sketcher.Constraint("Coincident", 5, 2, 0, 1),
    Sketcher.Constraint("Coincident", 6, 2, 7, 1),
    Sketcher.Constraint("Coincident", 7, 2, 8, 1),
    Sketcher.Constraint("Coincident", 8, 2, 9, 1),
    Sketcher.Constraint("Coincident", 9, 2, 10, 1),
    Sketcher.Constraint("Coincident", 10, 2, 11, 1),
    Sketcher.Constraint("Coincident", 11, 2, 6, 1),
    Sketcher.Constraint("Horizontal", 0),
    Sketcher.Constraint("Vertical", 1),
    Sketcher.Constraint("Horizontal", 3),
    Sketcher.Constraint("Vertical", 5),
    Sketcher.Constraint("Horizontal", 6),
    Sketcher.Constraint("Vertical", 7),
    Sketcher.Constraint("Horizontal", 9),
    Sketcher.Constraint("Vertical", 11),
    Sketcher.Constraint("Horizontal", 1, 2, 4, 2),
    Sketcher.Constraint("Horizontal", 7, 2, 10, 2),
    Sketcher.Constraint("Equal", 2, 4),
    Sketcher.Constraint("Equal", 8, 10),
    Sketcher.Constraint("DistanceX", 0, 1, 0, 2, Q("94 mm")),
    Sketcher.Constraint("DistanceX", 6, 2, 6, 1, Q("88 mm")),
    Sketcher.Constraint("DistanceX", 3, 2, 3, 1, Q("29.4 mm")),
    Sketcher.Constraint("DistanceX", -1, 1, 0, 2, Q("97 mm")),
    Sketcher.Constraint("DistanceY", -1, 1, 0, 2, Q("8 mm")),
    Sketcher.Constraint("DistanceY", -1, 1, 2, 2, Q("45 mm")),
    Sketcher.Constraint("DistanceX", -1, 1, 6, 2, Q("6 mm")),
    Sketcher.Constraint("DistanceY", -1, 1, 6, 2, Q("11 mm")),
    Sketcher.Constraint("DistanceY", -1, 1, 8, 2, Q("42 mm")),
    Sketcher.Constraint("DistanceY", 1, 1, 1, 2, Q("31.13 mm")),
    Sketcher.Constraint("Distance", 8, Q("29.83 mm")),
    Sketcher.Constraint("DistanceX", 9, 1, 9, 2, Q("29.316111 mm")),
])
pocket15 = body.newObject("PartDesign::Pocket", "Pocket014")
pocket15.Profile = sketch19
pocket15.Length = 20

# Sketch on XY plane
sketch20 = body.newObject("Sketcher::SketchObject", "Sketch019")
sketch20.AttachmentSupport = (doc.getObject("XY_Plane"), [""])
sketch20.MapMode = "FlatFace"
sketch20.AttachmentOffset = App.Placement(Vector(0, 0, 3), App.Rotation())
sketch20.addGeometry([
    Part.LineSegment(Vector(28, 34, 0), Vector(28, 13, 0)),
    Part.LineSegment(Vector(28, 13, 0), Vector(72, 13, 0)),
    Part.LineSegment(Vector(72, 13, 0), Vector(72, 34, 0)),
    Part.LineSegment(Vector(72, 34, 0), Vector(28, 34, 0)),
], False)
sketch20.addConstraint([
    Sketcher.Constraint("Coincident", 0, 2, 1, 1),
    Sketcher.Constraint("Coincident", 1, 2, 2, 1),
    Sketcher.Constraint("Coincident", 2, 2, 3, 1),
    Sketcher.Constraint("Coincident", 3, 2, 0, 1),
    Sketcher.Constraint("Vertical", 0),
    Sketcher.Constraint("Horizontal", 1),
    Sketcher.Constraint("Vertical", 2),
    Sketcher.Constraint("Horizontal", 3),
    Sketcher.Constraint("DistanceY", 0, 2, 0, 1, Q("21.123651 mm")),
    Sketcher.Constraint("DistanceX", 1, 1, 1, 2, Q("44.347308 mm")),
    Sketcher.Constraint("DistanceX", -1, 1, 1, 2, Q("72.252831 mm")),
    Sketcher.Constraint("DistanceY", -1, 1, 0, 2, Q("13.156153 mm")),
])
pad5 = body.newObject("PartDesign::Pad", "Pad004")
pad5.Profile = sketch20
pad5.Length = 3
pad5.Reversed = True

# Sketch on XY plane
sketch21 = body.newObject("Sketcher::SketchObject", "Sketch020")
sketch21.AttachmentSupport = (doc.getObject("XY_Plane"), [""])
sketch21.MapMode = "FlatFace"
sketch21.addGeometry([
    Part.Circle(Vector(20, 23, 0), Vector(0, 0, 1), 3),
    Part.Circle(Vector(80, 23, 0), Vector(0, 0, 1), 3),
], False)
sketch21.addConstraint([
    Sketcher.Constraint("Equal", 0, 1),
    Sketcher.Constraint("Horizontal", 0, 3, 1, 3),
    Sketcher.Constraint("Diameter", 0, Q("6 mm")),
    Sketcher.Constraint("DistanceX", -1, 1, 0, 3, Q("20 mm")),
    Sketcher.Constraint("DistanceY", -1, 1, 0, 3, Q("23 mm")),
    Sketcher.Constraint("DistanceX", -1, 1, 1, 3, Q("80 mm")),
])
pocket16 = body.newObject("PartDesign::Pocket", "Pocket015")
pocket16.Profile = sketch21
pocket16.Length = 5
pocket16.Reversed = True

# Sketch on XY plane
sketch22 = body.newObject("Sketcher::SketchObject", "Sketch021")
sketch22.AttachmentSupport = (doc.getObject("XY_Plane"), [""])
sketch22.MapMode = "FlatFace"
sketch22.AttachmentOffset = App.Placement(Vector(0, 0, 3), App.Rotation())
sketch22.addGeometry([
    Part.Circle(Vector(20, 23, 0), Vector(0, 0, 1), 5),
    Part.Circle(Vector(80, 23, 0), Vector(0, 0, 1), 5),
], False)
sketch22.addConstraint([
    Sketcher.Constraint("Equal", 0, 1),
    Sketcher.Constraint("Horizontal", 0, 3, 1, 3),
    Sketcher.Constraint("Diameter", 0, Q("10 mm")),
    Sketcher.Constraint("DistanceX", -1, 1, 0, 3, Q("20 mm")),
    Sketcher.Constraint("DistanceY", -1, 1, 0, 3, Q("23 mm")),
    Sketcher.Constraint("DistanceX", -1, 1, 1, 3, Q("80 mm")),
])
pad6 = body.newObject("PartDesign::Pad", "Pad005")
pad6.Profile = sketch22
pad6.Length = 3

# Sketch on XY plane
sketch23 = body.newObject("Sketcher::SketchObject", "Sketch022")
sketch23.AttachmentSupport = (doc.getObject("XY_Plane"), [""])
sketch23.MapMode = "FlatFace"
sketch23.AttachmentOffset = App.Placement(Vector(0, 0, 6), App.Rotation())
sketch23.addGeometry([
    Part.Circle(Vector(20, 23, 0), Vector(0, 0, 1), 2),
    Part.Circle(Vector(80, 23, 0), Vector(0, 0, 1), 2),
], False)
sketch23.addConstraint([
    Sketcher.Constraint("Equal", 0, 1),
    Sketcher.Constraint("Horizontal", 0, 3, 1, 3),
    Sketcher.Constraint("Diameter", 0, Q("4 mm")),
    Sketcher.Constraint("DistanceX", -1, 1, 0, 3, Q("20 mm")),
    Sketcher.Constraint("DistanceY", -1, 1, 0, 3, Q("23 mm")),
    Sketcher.Constraint("DistanceX", -1, 1, 1, 3, Q("80 mm")),
])
pocket17 = body.newObject("PartDesign::Pocket", "Pocket016")
pocket17.Profile = sketch23
pocket17.Length = 5

# Sketch on XY plane
sketch24 = body.newObject("Sketcher::SketchObject", "Sketch023")
sketch24.AttachmentSupport = (doc.getObject("XY_Plane"), [""])
sketch24.MapMode = "FlatFace"
sketch24.AttachmentOffset = App.Placement(Vector(0, 0, 6), App.Rotation())
sketch24.addGeometry([
    Part.Circle(Vector(20, 23, 0), Vector(0, 0, 1), 3),
    Part.Circle(Vector(80, 23, 0), Vector(0, 0, 1), 3),
], False)
sketch24.addConstraint([
    Sketcher.Constraint("Equal", 0, 1),
    Sketcher.Constraint("Horizontal", 0, 3, 1, 3),
    Sketcher.Constraint("Diameter", 0, Q("6 mm")),
    Sketcher.Constraint("DistanceX", -1, 1, 0, 3, Q("20 mm")),
    Sketcher.Constraint("DistanceY", -1, 1, 0, 3, Q("23 mm")),
    Sketcher.Constraint("DistanceX", -1, 1, 1, 3, Q("80 mm")),
])
pocket18 = body.newObject("PartDesign::Pocket", "Pocket017")
pocket18.Profile = sketch24
pocket18.Length = 1

# Sketch on XY plane
sketch25 = body.newObject("Sketcher::SketchObject", "Sketch024")
sketch25.AttachmentSupport = (doc.getObject("XY_Plane"), [""])
sketch25.MapMode = "FlatFace"
sketch25.addGeometry([
    Part.LineSegment(Vector(97, 8, 0), Vector(3, 8, 0)),  # 0
    Part.LineSegment(Vector(3, 8, 0), Vector(3, 39.1, 0)),  # 1
    Part.LineSegment(Vector(3, 39.1, 0), Vector(35.3, 45, 0)),  # 2
    Part.LineSegment(Vector(35.3, 45, 0), Vector(64.7, 45, 0)),  # 3
    Part.LineSegment(Vector(64.7, 45, 0), Vector(97, 39.1, 0)),  # 4
    Part.LineSegment(Vector(97, 39.1, 0), Vector(97, 8, 0)),  # 5
    Part.Circle(Vector(80, 23, 0), Vector(0, 0, 1), 3),  # 6
    Part.Circle(Vector(20, 23, 0), Vector(0, 0, 1), 3),  # 7
], False)
sketch25.addConstraint([
    Sketcher.Constraint("Coincident", 0, 2, 1, 1),
    Sketcher.Constraint("Coincident", 1, 2, 2, 1),
    Sketcher.Constraint("Coincident", 2, 2, 3, 1),
    Sketcher.Constraint("Coincident", 3, 2, 4, 1),
    Sketcher.Constraint("Coincident", 4, 2, 5, 1),
    Sketcher.Constraint("Coincident", 5, 2, 0, 1),
    Sketcher.Constraint("Horizontal", 0),
    Sketcher.Constraint("Vertical", 1),
    Sketcher.Constraint("Horizontal", 3),
    Sketcher.Constraint("Vertical", 5),
    Sketcher.Constraint("Equal", 6, 7),
    Sketcher.Constraint("Horizontal", 6, 3, 7, 3),
    Sketcher.Constraint("Horizontal", 1, 2, 4, 2),
    Sketcher.Constraint("Equal", 2, 4),
    Sketcher.Constraint("Diameter", 6, Q("6 mm")),
    Sketcher.Constraint("DistanceX", 0, 2, 0, 1, Q("94 mm")),
    Sketcher.Constraint("DistanceX", 3, 1, 3, 2, Q("29.4 mm")),
    Sketcher.Constraint("DistanceX", -1, 1, 6, 3, Q("80 mm")),
    Sketcher.Constraint("DistanceY", -1, 1, 6, 3, Q("23 mm")),
    Sketcher.Constraint("DistanceX", -1, 1, 7, 3, Q("20 mm")),
    Sketcher.Constraint("DistanceX", -1, 1, 0, 2, Q("3 mm")),
    Sketcher.Constraint("DistanceY", -1, 1, 0, 2, Q("8 mm")),
    Sketcher.Constraint("DistanceY", -1, 1, 2, 2, Q("45 mm")),
    Sketcher.Constraint("DistanceY", 1, 1, 1, 2, Q("31.13 mm")),
])
pad7 = body.newObject("PartDesign::Pad", "Pad006")
pad7.Profile = sketch25
pad7.Length = 1.5
pad7.Reversed = True

# Sketch on XZ plane
sketch26 = body.newObject("Sketcher::SketchObject", "Sketch025")
sketch26.AttachmentSupport = (doc.getObject("XZ_Plane"), [""])
sketch26.MapMode = "FlatFace"
sketch26.AttachmentOffset = App.Placement(Vector(0, 0, -8), App.Rotation())
sketch26.addGeometry([
    Part.LineSegment(Vector(97, -1.5, 0), Vector(97, 0, 0)),
    Part.LineSegment(Vector(97, 0, 0), Vector(3, 0, 0)),
    Part.LineSegment(Vector(3, 0, 0), Vector(3, -1.5, 0)),
    Part.LineSegment(Vector(3, -1.5, 0), Vector(97, -1.5, 0)),
], False)
sketch26.addConstraint([
    Sketcher.Constraint("Coincident", 0, 2, 1, 1),
    Sketcher.Constraint("Coincident", 1, 2, 2, 1),
    Sketcher.Constraint("Coincident", 2, 2, 3, 1),
    Sketcher.Constraint("Coincident", 3, 2, 0, 1),
    Sketcher.Constraint("Vertical", 0),
    Sketcher.Constraint("Horizontal", 1),
    Sketcher.Constraint("Vertical", 2),
    Sketcher.Constraint("Horizontal", 3),
    Sketcher.Constraint("PointOnObject", 0, 2, -1),
    Sketcher.Constraint("DistanceX", 1, 2, 1, 1, Q("94 mm")),
    Sketcher.Constraint("DistanceY", 0, 1, 0, 2, Q("1.5 mm")),
    Sketcher.Constraint("DistanceX", -1, 1, 0, 2, Q("97 mm")),
])
pocket19 = body.newObject("PartDesign::Pocket", "Pocket018")
pocket19.Profile = sketch26
pocket19.Length = 3.5

# Sketch on YZ plane
sketch27 = body.newObject("Sketcher::SketchObject", "Sketch026")
sketch27.AttachmentSupport = (doc.getObject("YZ_Plane"), [""])
sketch27.MapMode = "FlatFace"
sketch27.AttachmentOffset = App.Placement(Vector(0, 0, 3), App.Rotation())
sketch27.addGeometry([
    Part.LineSegment(Vector(11.5, -1.5, 0), Vector(11.5, 0, 0)),
    Part.LineSegment(Vector(11.5, 0, 0), Vector(39.1, 0, 0)),
    Part.LineSegment(Vector(39.1, 0, 0), Vector(39.1, -1.5, 0)),
    Part.LineSegment(Vector(39.1, -1.5, 0), Vector(11.5, -1.5, 0)),
], False)
sketch27.addConstraint([
    Sketcher.Constraint("Coincident", 0, 2, 1, 1),
    Sketcher.Constraint("Coincident", 1, 2, 2, 1),
    Sketcher.Constraint("Coincident", 2, 2, 3, 1),
    Sketcher.Constraint("Coincident", 3, 2, 0, 1),
    Sketcher.Constraint("Vertical", 0),
    Sketcher.Constraint("Horizontal", 1),
    Sketcher.Constraint("Vertical", 2),
    Sketcher.Constraint("Horizontal", 3),
    Sketcher.Constraint("PointOnObject", 0, 2, -1),
    Sketcher.Constraint("DistanceY", 0, 1, 0, 2, Q("1.5 mm")),
    Sketcher.Constraint("DistanceX", 1, 1, 1, 2, Q("27.63 mm")),
    Sketcher.Constraint("DistanceX", -1, 1, 0, 2, Q("11.5 mm")),
])
pocket20 = body.newObject("PartDesign::Pocket", "Pocket019")
pocket20.Profile = sketch27
pocket20.Length = 3.5
pocket20.Reversed = True

# Sketch on YZ plane
sketch28 = body.newObject("Sketcher::SketchObject", "Sketch027")
sketch28.AttachmentSupport = (doc.getObject("YZ_Plane"), [""])
sketch28.MapMode = "FlatFace"
sketch28.AttachmentOffset = App.Placement(Vector(0, 0, 97), App.Rotation())
sketch28.addGeometry([
    Part.LineSegment(Vector(39.1, -1.5, 0), Vector(39.1, 0, 0)),
    Part.LineSegment(Vector(39.1, 0, 0), Vector(11.5, 0, 0)),
    Part.LineSegment(Vector(11.5, 0, 0), Vector(11.5, -1.5, 0)),
    Part.LineSegment(Vector(11.5, -1.5, 0), Vector(39.1, -1.5, 0)),
], False)
sketch28.addConstraint([
    Sketcher.Constraint("Coincident", 0, 2, 1, 1),
    Sketcher.Constraint("Coincident", 1, 2, 2, 1),
    Sketcher.Constraint("Coincident", 2, 2, 3, 1),
    Sketcher.Constraint("Coincident", 3, 2, 0, 1),
    Sketcher.Constraint("Vertical", 0),
    Sketcher.Constraint("Horizontal", 1),
    Sketcher.Constraint("Vertical", 2),
    Sketcher.Constraint("Horizontal", 3),
    Sketcher.Constraint("PointOnObject", 0, 2, -1),
    Sketcher.Constraint("DistanceY", 0, 1, 0, 2, Q("1.5 mm")),
    Sketcher.Constraint("DistanceX", 1, 2, 1, 1, Q("27.63 mm")),
    Sketcher.Constraint("DistanceX", -1, 1, 1, 2, Q("11.5 mm")),
])
pocket21 = body.newObject("PartDesign::Pocket", "Pocket020")
pocket21.Profile = sketch28
pocket21.Length = 3.5

# Sketch on an angled plane
sketch29 = body.newObject("Sketcher::SketchObject", "Sketch028")
sketch29.Placement = App.Placement(Vector(80.85, 42.065, -0.75), App.Rotation(Vector(0.983884528, -0.178805021, 0), Vector(0, 0, -1), Vector(0.178805021, 0.983884528, 0), "ZXY"))
sketch29.addGeometry([
    Part.LineSegment(Vector(-16.4, 0.8, 0), Vector(-16.4, -0.8, 0)),
    Part.LineSegment(Vector(-16.4, -0.8, 0), Vector(16.4, -0.8, 0)),
    Part.LineSegment(Vector(16.4, -0.8, 0), Vector(16.4, 0.8, 0)),
    Part.LineSegment(Vector(16.4, 0.8, 0), Vector(-16.4, 0.8, 0)),
], False)
sketch29.addConstraint([
    Sketcher.Constraint("Coincident", 0, 2, 1, 1),
    Sketcher.Constraint("Coincident", 1, 2, 2, 1),
    Sketcher.Constraint("Coincident", 2, 2, 3, 1),
    Sketcher.Constraint("Coincident", 3, 2, 0, 1),
    Sketcher.Constraint("Vertical", 0),
    Sketcher.Constraint("Horizontal", 1),
    Sketcher.Constraint("Vertical", 2),
    Sketcher.Constraint("Horizontal", 3),
    Sketcher.Constraint("Symmetric", 0, 2, 2, 2, -1, 1),
    Sketcher.Constraint("DistanceY", 0, 2, 0, 1, Q("1.5 mm")),
    Sketcher.Constraint("DistanceX", 1, 1, 1, 2, Q("32.829056 mm")),
])
pocket22 = body.newObject("PartDesign::Pocket", "Pocket021")
pocket22.Profile = sketch29
pocket22.Length = 3.5

# Sketch on an angled plane
sketch30 = body.newObject("Sketcher::SketchObject", "Sketch029")
sketch30.Placement = App.Placement(Vector(19.15, 42.065, -0.75), App.Rotation(Vector(0.983884528, 0.178805021, 0), Vector(0, 0, -1), Vector(-0.178805021, 0.983884528, 0), "ZXY"))
sketch30.addGeometry([
    Part.LineSegment(Vector(-16.4, 0.8, 0), Vector(-16.4, -0.8, 0)),
    Part.LineSegment(Vector(-16.4, -0.8, 0), Vector(16.4, -0.8, 0)),
    Part.LineSegment(Vector(16.4, -0.8, 0), Vector(16.4, 0.8, 0)),
    Part.LineSegment(Vector(16.4, 0.8, 0), Vector(-16.4, 0.8, 0)),
], False)
sketch30.addConstraint([
    Sketcher.Constraint("Coincident", 0, 2, 1, 1),
    Sketcher.Constraint("Coincident", 1, 2, 2, 1),
    Sketcher.Constraint("Coincident", 2, 2, 3, 1),
    Sketcher.Constraint("Coincident", 3, 2, 0, 1),
    Sketcher.Constraint("Vertical", 0),
    Sketcher.Constraint("Horizontal", 1),
    Sketcher.Constraint("Vertical", 2),
    Sketcher.Constraint("Horizontal", 3),
    Sketcher.Constraint("Symmetric", 0, 2, 2, 2, -1, 1),
    Sketcher.Constraint("DistanceY", 0, 2, 0, 1, Q("1.5 mm")),
    Sketcher.Constraint("DistanceX", 1, 1, 1, 2, Q("32.829056 mm")),
])
pocket23 = body.newObject("PartDesign::Pocket", "Pocket022")
pocket23.Profile = sketch30
pocket23.Length = 3.5

# Sketch on XZ plane
sketch31 = body.newObject("Sketcher::SketchObject", "Sketch030")
sketch31.AttachmentSupport = (doc.getObject("XZ_Plane"), [""])
sketch31.MapMode = "FlatFace"
sketch31.AttachmentOffset = App.Placement(Vector(0, 0, -45), App.Rotation())
sketch31.addGeometry([
    Part.LineSegment(Vector(35.3, -1.5, 0), Vector(35.3, 0, 0)),
    Part.LineSegment(Vector(35.3, 0, 0), Vector(64.7, 0, 0)),
    Part.LineSegment(Vector(64.7, 0, 0), Vector(64.7, -1.5, 0)),
    Part.LineSegment(Vector(64.7, -1.5, 0), Vector(35.3, -1.5, 0)),
], False)
sketch31.addConstraint([
    Sketcher.Constraint("Coincident", 0, 2, 1, 1),
    Sketcher.Constraint("Coincident", 1, 2, 2, 1),
    Sketcher.Constraint("Coincident", 2, 2, 3, 1),
    Sketcher.Constraint("Coincident", 3, 2, 0, 1),
    Sketcher.Constraint("Vertical", 0),
    Sketcher.Constraint("Horizontal", 1),
    Sketcher.Constraint("Vertical", 2),
    Sketcher.Constraint("Horizontal", 3),
    Sketcher.Constraint("PointOnObject", 0, 2, -1),
    Sketcher.Constraint("DistanceX", 1, 1, 1, 2, Q("29.4 mm")),
    Sketcher.Constraint("DistanceY", 0, 1, 0, 2, Q("1.5 mm")),
    Sketcher.Constraint("DistanceX", -1, 1, 0, 2, Q("35.3 mm")),
])
pocket24 = body.newObject("PartDesign::Pocket", "Pocket023")
pocket24.Profile = sketch31
pocket24.Length = 3.5
pocket24.Reversed = True

doc.recompute()
